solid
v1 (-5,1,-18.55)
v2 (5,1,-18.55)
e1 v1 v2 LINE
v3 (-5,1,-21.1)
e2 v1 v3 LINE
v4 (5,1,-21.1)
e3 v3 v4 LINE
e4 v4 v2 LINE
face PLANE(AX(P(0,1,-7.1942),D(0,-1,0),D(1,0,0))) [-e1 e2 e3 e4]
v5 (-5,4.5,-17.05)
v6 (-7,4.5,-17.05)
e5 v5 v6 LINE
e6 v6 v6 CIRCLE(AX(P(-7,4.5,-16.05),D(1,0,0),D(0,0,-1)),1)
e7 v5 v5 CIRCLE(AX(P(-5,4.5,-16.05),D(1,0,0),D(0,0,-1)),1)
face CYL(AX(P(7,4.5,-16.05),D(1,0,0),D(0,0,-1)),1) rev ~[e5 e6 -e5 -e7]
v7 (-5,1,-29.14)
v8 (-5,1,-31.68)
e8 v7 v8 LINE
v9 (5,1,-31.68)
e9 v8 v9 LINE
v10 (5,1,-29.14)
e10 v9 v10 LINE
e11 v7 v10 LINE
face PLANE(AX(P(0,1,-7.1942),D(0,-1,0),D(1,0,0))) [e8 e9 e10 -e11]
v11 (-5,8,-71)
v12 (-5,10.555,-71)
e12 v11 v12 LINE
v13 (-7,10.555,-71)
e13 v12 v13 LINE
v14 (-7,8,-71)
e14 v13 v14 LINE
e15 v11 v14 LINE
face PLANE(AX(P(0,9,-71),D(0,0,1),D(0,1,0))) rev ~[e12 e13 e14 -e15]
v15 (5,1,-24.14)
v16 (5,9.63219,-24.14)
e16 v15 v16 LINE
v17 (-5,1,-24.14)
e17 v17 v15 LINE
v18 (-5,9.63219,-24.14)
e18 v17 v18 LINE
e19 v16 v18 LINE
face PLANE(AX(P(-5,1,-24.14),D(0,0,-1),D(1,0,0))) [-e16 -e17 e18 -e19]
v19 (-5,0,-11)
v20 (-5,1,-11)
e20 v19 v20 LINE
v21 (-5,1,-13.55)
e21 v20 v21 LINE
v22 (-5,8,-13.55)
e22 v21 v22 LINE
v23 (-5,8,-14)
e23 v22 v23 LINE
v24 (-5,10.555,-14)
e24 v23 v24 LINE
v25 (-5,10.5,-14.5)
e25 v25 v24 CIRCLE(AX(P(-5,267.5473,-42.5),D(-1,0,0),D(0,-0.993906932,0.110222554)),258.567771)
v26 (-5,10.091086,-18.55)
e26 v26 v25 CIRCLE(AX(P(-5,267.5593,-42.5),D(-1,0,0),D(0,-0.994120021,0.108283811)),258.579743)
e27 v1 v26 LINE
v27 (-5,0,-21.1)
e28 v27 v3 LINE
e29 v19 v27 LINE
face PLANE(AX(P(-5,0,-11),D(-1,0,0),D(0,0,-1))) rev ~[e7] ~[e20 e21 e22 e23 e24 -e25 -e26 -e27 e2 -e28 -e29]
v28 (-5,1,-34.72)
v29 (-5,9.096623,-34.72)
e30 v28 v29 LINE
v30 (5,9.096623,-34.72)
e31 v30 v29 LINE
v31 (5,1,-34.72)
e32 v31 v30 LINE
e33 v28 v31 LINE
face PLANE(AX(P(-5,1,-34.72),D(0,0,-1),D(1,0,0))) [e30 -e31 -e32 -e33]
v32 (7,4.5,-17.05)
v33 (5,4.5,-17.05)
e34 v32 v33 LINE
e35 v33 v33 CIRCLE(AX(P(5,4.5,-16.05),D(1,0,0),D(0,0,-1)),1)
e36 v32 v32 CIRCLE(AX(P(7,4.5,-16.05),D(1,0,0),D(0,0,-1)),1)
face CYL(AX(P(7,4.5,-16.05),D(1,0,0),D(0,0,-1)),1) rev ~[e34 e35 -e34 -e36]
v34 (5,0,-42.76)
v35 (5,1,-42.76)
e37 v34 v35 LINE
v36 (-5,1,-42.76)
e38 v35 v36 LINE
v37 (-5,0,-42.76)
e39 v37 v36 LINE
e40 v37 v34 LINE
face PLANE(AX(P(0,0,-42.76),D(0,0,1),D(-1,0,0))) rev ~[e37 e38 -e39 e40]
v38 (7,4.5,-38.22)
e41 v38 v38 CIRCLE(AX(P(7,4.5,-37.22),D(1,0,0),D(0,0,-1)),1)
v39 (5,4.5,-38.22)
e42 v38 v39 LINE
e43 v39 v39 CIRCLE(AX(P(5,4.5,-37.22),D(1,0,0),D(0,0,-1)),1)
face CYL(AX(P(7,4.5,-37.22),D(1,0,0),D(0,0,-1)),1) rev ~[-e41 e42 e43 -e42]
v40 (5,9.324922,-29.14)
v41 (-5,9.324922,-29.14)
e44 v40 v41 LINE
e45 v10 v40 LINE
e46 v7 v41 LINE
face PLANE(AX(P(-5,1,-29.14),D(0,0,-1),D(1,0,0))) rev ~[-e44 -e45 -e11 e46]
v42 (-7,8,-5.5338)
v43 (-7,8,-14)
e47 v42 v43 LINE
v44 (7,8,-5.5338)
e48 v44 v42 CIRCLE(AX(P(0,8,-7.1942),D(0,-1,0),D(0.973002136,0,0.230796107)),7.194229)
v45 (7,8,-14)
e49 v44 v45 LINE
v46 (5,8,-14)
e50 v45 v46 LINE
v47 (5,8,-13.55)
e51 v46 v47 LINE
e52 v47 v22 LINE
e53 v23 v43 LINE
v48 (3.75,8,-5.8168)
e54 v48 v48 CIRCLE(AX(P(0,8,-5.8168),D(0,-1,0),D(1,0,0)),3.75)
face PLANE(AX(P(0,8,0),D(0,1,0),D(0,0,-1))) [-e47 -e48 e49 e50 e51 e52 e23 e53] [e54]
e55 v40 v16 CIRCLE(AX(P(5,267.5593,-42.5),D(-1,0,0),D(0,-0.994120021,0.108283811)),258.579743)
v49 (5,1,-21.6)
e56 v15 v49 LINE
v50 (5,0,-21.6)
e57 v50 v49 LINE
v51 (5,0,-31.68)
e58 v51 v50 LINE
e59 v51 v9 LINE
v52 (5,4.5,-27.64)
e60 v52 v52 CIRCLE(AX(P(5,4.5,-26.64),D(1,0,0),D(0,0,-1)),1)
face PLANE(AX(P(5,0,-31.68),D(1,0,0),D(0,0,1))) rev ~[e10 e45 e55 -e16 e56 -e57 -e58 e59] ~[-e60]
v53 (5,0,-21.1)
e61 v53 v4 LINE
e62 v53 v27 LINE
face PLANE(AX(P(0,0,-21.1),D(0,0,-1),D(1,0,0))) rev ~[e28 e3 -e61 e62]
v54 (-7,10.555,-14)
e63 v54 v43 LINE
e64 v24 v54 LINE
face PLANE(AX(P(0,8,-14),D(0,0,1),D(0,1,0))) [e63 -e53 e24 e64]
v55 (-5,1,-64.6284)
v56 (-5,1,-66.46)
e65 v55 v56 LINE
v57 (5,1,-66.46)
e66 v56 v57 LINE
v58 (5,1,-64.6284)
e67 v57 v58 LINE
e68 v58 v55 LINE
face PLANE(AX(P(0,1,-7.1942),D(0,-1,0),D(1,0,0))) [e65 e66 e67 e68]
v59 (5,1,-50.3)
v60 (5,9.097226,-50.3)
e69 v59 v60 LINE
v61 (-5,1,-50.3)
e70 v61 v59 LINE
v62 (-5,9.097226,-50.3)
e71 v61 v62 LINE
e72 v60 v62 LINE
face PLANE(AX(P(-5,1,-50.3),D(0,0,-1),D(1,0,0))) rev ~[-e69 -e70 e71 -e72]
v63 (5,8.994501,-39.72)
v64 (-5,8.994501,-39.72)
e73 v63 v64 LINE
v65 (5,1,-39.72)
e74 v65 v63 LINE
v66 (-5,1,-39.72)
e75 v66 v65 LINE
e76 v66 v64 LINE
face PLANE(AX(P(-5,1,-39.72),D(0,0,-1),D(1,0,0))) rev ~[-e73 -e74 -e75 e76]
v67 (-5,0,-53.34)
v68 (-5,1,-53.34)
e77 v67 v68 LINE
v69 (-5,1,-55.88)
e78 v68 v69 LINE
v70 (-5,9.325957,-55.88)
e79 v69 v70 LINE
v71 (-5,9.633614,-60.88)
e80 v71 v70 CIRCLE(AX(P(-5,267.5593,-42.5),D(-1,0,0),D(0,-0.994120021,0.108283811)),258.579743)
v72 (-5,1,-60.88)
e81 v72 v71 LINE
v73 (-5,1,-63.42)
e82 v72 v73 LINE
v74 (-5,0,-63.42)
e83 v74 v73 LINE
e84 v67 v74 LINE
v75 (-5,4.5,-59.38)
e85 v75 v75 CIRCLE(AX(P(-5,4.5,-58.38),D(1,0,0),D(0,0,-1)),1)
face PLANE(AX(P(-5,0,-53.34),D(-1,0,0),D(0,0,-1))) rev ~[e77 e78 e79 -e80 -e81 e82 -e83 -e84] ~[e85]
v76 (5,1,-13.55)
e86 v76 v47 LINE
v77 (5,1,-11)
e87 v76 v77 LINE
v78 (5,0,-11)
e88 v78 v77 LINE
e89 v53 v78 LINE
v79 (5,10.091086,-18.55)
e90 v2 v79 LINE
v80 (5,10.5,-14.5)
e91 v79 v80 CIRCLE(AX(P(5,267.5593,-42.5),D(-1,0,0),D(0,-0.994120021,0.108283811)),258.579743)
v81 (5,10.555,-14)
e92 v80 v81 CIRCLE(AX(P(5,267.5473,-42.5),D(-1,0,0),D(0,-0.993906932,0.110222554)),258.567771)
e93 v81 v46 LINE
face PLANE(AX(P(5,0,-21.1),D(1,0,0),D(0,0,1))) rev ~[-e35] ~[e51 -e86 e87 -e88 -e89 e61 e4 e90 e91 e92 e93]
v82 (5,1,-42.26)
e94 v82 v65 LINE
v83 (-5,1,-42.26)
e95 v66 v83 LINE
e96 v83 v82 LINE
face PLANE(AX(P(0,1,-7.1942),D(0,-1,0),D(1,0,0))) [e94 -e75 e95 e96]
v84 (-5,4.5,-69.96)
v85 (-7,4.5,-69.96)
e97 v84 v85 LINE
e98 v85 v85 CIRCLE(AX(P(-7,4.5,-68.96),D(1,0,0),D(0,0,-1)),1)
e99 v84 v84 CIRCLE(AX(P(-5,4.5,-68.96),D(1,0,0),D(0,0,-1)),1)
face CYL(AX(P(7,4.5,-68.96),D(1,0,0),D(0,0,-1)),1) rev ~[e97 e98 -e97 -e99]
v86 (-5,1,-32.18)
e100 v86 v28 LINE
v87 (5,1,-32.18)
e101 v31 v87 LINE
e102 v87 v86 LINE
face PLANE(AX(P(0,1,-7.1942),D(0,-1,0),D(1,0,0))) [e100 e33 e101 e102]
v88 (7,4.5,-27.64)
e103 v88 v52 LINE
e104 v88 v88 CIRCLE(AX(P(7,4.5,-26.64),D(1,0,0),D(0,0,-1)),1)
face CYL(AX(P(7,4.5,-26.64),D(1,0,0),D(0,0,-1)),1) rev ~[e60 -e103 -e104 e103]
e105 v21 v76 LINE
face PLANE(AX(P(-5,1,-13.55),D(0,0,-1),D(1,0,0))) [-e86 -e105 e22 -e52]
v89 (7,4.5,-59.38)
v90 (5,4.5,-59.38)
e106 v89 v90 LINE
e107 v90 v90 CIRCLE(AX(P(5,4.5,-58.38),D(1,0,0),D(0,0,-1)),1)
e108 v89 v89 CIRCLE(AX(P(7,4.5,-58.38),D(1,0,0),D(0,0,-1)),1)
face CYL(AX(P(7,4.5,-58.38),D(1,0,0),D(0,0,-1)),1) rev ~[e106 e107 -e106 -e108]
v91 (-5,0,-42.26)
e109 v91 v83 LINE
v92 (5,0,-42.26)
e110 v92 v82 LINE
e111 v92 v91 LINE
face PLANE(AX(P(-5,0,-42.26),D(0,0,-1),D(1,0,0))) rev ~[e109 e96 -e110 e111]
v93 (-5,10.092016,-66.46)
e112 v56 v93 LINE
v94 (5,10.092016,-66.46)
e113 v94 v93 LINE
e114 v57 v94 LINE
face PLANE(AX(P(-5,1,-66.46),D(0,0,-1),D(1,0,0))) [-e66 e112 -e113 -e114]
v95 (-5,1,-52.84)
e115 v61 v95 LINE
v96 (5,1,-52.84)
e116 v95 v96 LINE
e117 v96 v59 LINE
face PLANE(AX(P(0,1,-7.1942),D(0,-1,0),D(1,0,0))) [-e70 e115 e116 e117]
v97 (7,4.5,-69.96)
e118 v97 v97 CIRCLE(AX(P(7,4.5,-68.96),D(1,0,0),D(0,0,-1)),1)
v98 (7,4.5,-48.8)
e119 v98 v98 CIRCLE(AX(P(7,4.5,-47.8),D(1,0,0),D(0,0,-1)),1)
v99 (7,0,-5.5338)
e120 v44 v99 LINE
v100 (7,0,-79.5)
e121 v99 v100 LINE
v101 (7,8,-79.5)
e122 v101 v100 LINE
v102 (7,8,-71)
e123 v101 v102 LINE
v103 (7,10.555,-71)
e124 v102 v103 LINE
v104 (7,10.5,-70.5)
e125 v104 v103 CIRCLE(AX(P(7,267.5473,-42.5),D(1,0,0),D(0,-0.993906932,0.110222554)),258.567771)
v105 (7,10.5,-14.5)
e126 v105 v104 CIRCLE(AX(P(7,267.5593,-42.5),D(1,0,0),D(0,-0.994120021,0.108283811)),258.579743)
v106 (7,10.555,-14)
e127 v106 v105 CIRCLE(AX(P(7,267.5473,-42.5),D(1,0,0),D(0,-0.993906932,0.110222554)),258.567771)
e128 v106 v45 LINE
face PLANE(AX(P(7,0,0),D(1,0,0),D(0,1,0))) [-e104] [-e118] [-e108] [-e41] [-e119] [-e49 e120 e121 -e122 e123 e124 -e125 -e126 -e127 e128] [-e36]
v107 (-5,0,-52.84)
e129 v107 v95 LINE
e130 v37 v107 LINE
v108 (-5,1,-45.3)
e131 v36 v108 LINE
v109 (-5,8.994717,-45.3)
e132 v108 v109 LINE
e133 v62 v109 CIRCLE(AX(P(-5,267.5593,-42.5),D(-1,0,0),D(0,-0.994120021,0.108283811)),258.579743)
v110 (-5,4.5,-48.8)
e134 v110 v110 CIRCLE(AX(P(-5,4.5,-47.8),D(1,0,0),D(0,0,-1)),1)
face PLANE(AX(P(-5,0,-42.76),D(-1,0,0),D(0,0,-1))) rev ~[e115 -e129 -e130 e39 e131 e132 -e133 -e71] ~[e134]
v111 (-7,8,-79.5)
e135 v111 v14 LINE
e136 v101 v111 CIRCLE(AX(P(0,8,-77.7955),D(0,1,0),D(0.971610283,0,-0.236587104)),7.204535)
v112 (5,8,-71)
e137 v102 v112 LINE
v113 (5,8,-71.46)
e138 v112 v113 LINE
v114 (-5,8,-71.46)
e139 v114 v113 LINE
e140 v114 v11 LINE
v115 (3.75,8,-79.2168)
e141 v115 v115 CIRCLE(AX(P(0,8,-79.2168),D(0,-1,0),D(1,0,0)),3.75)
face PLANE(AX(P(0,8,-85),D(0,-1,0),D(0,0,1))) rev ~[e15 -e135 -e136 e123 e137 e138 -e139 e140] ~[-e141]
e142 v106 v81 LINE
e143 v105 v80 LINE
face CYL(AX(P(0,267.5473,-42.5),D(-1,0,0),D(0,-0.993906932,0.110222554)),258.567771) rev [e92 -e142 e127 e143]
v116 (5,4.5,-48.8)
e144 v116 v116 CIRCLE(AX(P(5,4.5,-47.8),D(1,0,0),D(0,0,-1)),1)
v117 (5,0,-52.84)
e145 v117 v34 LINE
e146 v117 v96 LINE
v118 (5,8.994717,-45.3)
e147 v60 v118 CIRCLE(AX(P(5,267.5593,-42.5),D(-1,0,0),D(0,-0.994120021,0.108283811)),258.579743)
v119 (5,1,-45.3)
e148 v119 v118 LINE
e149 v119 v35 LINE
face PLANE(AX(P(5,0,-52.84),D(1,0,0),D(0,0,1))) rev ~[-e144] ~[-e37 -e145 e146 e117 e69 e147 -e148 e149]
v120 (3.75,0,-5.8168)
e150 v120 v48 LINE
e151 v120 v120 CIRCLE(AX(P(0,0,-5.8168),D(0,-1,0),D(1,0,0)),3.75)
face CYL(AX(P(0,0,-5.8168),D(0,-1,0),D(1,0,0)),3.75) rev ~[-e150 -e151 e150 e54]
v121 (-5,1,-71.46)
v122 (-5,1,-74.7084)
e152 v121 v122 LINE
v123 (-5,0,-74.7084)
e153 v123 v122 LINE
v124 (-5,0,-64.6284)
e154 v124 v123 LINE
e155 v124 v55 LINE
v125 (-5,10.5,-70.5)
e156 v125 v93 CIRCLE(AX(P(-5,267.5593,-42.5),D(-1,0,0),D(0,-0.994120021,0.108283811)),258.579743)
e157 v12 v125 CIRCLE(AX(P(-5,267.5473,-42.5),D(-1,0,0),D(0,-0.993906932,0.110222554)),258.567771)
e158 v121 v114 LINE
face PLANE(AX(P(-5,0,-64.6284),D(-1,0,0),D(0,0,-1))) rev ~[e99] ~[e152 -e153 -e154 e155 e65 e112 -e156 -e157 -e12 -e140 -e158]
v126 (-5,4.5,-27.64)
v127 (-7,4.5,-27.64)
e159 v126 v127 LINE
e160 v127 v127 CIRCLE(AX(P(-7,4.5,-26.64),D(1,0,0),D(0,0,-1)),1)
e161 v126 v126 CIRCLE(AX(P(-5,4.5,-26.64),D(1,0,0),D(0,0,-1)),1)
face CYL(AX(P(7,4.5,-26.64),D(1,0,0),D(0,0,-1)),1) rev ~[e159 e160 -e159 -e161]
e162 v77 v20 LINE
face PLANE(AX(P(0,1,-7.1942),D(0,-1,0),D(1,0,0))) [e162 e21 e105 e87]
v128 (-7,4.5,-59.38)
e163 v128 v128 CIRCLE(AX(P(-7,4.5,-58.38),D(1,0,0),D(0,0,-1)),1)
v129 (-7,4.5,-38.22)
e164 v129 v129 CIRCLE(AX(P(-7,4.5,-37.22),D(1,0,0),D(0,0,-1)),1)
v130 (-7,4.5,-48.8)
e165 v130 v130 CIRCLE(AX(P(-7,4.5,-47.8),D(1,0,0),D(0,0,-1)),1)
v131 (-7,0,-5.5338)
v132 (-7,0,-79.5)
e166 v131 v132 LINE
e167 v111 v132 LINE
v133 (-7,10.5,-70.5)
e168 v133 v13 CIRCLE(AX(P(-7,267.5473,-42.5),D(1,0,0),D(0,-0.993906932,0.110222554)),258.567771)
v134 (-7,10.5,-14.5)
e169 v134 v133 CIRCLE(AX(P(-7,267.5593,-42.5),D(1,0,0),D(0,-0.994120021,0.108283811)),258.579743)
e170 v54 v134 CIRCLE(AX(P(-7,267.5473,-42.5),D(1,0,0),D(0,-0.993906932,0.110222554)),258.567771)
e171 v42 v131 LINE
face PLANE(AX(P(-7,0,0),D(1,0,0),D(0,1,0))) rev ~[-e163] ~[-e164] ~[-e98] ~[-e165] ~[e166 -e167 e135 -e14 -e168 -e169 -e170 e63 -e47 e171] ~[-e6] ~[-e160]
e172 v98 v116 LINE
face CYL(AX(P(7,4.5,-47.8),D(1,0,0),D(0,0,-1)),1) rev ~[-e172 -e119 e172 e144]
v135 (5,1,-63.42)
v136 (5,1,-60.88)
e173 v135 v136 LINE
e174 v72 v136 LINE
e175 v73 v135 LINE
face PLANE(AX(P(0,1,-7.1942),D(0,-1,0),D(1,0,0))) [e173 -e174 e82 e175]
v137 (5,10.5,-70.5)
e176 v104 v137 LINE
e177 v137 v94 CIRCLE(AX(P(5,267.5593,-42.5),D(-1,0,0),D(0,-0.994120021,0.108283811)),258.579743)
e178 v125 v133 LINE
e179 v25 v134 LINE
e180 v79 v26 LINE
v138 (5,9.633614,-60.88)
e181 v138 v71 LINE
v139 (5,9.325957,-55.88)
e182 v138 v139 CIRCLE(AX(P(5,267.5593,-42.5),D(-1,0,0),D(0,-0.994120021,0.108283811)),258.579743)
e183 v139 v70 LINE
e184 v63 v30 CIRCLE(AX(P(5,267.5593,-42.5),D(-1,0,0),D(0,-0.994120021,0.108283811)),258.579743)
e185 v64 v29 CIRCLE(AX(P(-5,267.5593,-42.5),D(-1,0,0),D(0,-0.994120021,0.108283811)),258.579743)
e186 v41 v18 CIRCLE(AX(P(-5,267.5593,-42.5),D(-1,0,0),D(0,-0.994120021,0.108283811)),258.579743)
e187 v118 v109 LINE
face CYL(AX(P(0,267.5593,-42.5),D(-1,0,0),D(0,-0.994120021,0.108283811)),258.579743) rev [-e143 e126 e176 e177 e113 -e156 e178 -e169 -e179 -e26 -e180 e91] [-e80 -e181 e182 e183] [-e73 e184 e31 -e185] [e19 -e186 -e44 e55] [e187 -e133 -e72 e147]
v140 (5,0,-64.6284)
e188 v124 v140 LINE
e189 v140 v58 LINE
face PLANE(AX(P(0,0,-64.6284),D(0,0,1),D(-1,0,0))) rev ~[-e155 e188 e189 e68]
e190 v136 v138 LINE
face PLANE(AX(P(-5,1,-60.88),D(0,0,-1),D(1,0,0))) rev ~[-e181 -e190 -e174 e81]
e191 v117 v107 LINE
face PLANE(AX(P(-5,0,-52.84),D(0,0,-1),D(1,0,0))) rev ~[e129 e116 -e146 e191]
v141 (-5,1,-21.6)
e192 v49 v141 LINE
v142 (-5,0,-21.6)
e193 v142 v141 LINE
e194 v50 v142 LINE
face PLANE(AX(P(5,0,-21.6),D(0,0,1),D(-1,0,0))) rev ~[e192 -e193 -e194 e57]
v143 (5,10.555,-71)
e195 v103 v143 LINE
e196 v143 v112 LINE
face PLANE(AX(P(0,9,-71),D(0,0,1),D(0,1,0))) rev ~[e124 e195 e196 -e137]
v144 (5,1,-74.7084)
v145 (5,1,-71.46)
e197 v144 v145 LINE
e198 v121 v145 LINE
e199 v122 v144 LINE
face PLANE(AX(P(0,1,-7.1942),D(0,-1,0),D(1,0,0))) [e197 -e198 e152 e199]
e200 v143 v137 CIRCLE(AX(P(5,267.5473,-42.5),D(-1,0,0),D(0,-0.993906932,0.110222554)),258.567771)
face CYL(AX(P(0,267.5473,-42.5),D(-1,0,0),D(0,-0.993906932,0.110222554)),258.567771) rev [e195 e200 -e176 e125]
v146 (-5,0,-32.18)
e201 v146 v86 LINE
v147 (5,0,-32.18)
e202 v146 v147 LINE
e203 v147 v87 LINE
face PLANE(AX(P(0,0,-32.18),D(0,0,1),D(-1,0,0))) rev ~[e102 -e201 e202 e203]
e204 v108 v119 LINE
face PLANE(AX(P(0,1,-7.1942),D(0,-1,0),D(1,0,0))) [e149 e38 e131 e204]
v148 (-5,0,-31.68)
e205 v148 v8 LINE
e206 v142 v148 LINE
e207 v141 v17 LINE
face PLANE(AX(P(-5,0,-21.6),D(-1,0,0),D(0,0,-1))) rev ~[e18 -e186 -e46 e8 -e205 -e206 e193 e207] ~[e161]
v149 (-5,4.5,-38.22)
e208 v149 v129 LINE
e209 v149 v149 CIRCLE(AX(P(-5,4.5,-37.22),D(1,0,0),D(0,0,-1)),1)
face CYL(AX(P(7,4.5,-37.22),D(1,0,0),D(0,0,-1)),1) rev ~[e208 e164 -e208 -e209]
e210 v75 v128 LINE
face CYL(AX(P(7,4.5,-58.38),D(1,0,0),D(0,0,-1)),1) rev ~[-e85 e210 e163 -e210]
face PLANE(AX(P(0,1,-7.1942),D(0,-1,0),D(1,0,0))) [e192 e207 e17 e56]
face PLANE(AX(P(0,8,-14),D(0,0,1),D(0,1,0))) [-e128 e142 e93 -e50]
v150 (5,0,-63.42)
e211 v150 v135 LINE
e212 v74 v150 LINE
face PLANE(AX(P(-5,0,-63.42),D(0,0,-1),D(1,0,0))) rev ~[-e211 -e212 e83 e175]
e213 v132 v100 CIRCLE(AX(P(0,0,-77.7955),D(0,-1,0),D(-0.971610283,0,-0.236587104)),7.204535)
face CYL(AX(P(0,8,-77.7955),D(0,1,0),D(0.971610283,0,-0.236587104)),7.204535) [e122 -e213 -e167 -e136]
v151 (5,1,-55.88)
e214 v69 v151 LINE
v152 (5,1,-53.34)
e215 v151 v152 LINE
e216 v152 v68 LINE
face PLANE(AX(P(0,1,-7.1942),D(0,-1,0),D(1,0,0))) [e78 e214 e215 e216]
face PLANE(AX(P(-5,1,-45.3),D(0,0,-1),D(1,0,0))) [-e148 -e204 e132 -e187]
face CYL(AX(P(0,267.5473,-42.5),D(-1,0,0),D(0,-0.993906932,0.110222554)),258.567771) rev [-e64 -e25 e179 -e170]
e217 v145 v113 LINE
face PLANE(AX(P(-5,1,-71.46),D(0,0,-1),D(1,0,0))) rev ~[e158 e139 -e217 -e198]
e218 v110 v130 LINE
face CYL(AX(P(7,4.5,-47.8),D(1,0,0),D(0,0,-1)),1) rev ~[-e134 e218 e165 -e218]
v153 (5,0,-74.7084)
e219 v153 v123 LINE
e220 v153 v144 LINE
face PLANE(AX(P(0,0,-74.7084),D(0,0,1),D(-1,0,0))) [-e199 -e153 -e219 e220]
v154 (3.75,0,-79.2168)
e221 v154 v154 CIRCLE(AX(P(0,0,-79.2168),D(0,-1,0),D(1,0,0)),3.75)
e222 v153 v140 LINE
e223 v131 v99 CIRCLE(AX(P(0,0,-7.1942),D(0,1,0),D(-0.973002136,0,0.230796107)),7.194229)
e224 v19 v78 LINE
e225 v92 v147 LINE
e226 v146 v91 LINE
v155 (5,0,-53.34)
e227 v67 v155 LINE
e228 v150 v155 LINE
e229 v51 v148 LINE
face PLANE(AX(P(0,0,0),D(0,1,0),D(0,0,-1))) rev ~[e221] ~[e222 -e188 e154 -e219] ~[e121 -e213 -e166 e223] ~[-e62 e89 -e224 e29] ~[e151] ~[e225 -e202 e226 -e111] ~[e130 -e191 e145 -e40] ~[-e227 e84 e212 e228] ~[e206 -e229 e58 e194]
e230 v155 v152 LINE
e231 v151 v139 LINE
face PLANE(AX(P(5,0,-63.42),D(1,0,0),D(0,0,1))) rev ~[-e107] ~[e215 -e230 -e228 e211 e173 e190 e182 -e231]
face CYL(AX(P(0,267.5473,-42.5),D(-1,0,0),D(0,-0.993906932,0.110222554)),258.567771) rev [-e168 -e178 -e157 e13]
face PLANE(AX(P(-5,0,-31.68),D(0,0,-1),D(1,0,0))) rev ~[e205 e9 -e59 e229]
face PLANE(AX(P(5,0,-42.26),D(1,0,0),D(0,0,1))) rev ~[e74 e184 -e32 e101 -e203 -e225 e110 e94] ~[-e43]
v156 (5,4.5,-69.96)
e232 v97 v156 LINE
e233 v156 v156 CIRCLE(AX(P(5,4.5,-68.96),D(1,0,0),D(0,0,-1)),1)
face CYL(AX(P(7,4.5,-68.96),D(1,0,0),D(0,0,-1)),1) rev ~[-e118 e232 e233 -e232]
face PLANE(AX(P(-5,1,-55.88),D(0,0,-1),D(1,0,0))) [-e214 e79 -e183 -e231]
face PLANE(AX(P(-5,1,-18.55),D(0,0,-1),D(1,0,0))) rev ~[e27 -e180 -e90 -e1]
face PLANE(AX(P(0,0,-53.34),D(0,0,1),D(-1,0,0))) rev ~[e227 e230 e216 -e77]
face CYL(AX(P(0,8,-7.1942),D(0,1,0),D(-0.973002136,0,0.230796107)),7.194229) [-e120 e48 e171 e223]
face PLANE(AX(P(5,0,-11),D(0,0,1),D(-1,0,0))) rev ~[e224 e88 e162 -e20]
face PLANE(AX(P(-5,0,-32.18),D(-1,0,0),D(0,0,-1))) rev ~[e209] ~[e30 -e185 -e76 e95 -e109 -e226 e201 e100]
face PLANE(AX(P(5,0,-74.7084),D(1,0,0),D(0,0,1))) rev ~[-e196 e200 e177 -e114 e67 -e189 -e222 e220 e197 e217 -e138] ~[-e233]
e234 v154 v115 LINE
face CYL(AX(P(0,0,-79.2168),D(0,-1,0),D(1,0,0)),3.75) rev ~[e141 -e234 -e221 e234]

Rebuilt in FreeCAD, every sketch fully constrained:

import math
import FreeCAD as App
import Part
import Sketcher

V = App.Vector

doc = App.newDocument("Part")
body = doc.addObject("PartDesign::Body", "Body")

# Sketch on YZ plane
sketch1 = body.newObject("Sketcher::SketchObject", "Sketch")
sketch1.AttachmentSupport = (doc.getObject("YZ_Plane"), [""])
sketch1.MapMode = "FlatFace"
sketch1.addGeometry([
    Part.LineSegment(V(8, 0, 0), V(0, 0, 0)),  # 0
    Part.LineSegment(V(0, 0, 0), V(0, -85, 0)),  # 1
    Part.LineSegment(V(0, -85, 0), V(8, -85, 0)),  # 2
    Part.LineSegment(V(8, -85, 0), V(8, -71, 0)),  # 3
    Part.LineSegment(V(8, -71, 0), V(10.555, -71, 0)),  # 4
    Part.ArcOfCircle(Part.Circle(V(267.5473, -42.5, 0), V(0, 0, 1), 258.567771), math.radians(-173.783318), math.radians(-173.671855)),  # 5
    Part.ArcOfCircle(Part.Circle(V(267.5593, -42.5, 0), V(0, 0, 1), 258.579743), math.radians(173.783606), math.radians(186.216394)),  # 6
    Part.ArcOfCircle(Part.Circle(V(267.5473, -42.5, 0), V(0, 0, 1), 258.567771), math.radians(173.671855), math.radians(173.783318)),  # 7
    Part.LineSegment(V(10.555, -14, 0), V(8, -14, 0)),  # 8
    Part.LineSegment(V(8, -14, 0), V(8, 0, 0)),  # 9
], False)
sketch1.addConstraint([
    Sketcher.Constraint("Coincident", 0, 2, 1, 1),
    Sketcher.Constraint("Coincident", 1, 2, 2, 1),
    Sketcher.Constraint("Coincident", 2, 2, 3, 1),
    Sketcher.Constraint("Coincident", 3, 2, 4, 1),
    Sketcher.Constraint("Coincident", 4, 2, 5, 2),
    Sketcher.Constraint("Coincident", 5, 1, 6, 2),
    Sketcher.Constraint("Coincident", 6, 1, 7, 2),
    Sketcher.Constraint("Coincident", 7, 1, 8, 1),
    Sketcher.Constraint("Coincident", 8, 2, 9, 1),
    Sketcher.Constraint("Coincident", 9, 2, 0, 1),
    Sketcher.Constraint("Horizontal", 0),
    Sketcher.Constraint("Vertical", 1),
    Sketcher.Constraint("Horizontal", 2),
    Sketcher.Constraint("Vertical", 3),
    Sketcher.Constraint("Horizontal", 4),
    Sketcher.Constraint("Horizontal", 8),
    Sketcher.Constraint("Vertical", 9),
    Sketcher.Constraint("Coincident", 0, 2, -1, 1),
    Sketcher.Constraint("Coincident", 7, 3, 5, 3),
    Sketcher.Constraint("DistanceX", 0, 2, 0, 1, 8.0),
    Sketcher.Constraint("DistanceX", 2, 1, 2, 2, 8.0),
    Sketcher.Constraint("DistanceY", 1, 2, 1, 1, 85.0),
    Sketcher.Constraint("DistanceY", 3, 1, 3, 2, 14.0),
    Sketcher.Constraint("DistanceY", 9, 1, 9, 2, 14.0),
    Sketcher.Constraint("DistanceY", 5, 1, 6, 1, 56.0),
    Sketcher.Constraint("DistanceY", 5, 3, -1, 1, 42.5),
    Sketcher.Constraint("DistanceY", 6, 3, -1, 1, 42.5),
    Sketcher.Constraint("DistanceX", -1, 1, 5, 1, 10.5),
    Sketcher.Constraint("DistanceY", 5, 1, -1, 1, 70.5),
    Sketcher.Constraint("Radius", 5, 258.5678),
    Sketcher.Constraint("Radius", 6, 258.5797),
])
pad1 = body.newObject("PartDesign::Pad", "Pad")
pad1.Profile = sketch1
pad1.Length = 14
pad1.Midplane = True

# Sketch on XZ plane
sketch2 = body.newObject("Sketcher::SketchObject", "Sketch001")
sketch2.AttachmentSupport = (doc.getObject("XZ_Plane"), [""])
sketch2.MapMode = "FlatFace"
sketch2.AttachmentOffset = App.Placement(V(0, 0, -8), App.Rotation())
sketch2.addGeometry([
    Part.ArcOfCircle(Part.Circle(V(0, -7.1942, 0), V(0, 0, 1), 7.194229), math.radians(90), math.radians(166.656054)),  # 0
    Part.LineSegment(V(-7, -5.5338, 0), V(-7, 0, 0)),  # 1
    Part.LineSegment(V(-7, 0, 0), V(0, 0, 0)),  # 2
    Part.ArcOfCircle(Part.Circle(V(0, -7.1942, 0), V(0, 0, 1), 7.194229), math.radians(13.343946), math.radians(90)),  # 3
    Part.LineSegment(V(0, 0, 0), V(7, 0, 0)),  # 4
    Part.LineSegment(V(7, 0, 0), V(7, -5.5338, 0)),  # 5
], False)
sketch2.addConstraint([
    Sketcher.Constraint("Coincident", 0, 2, 1, 1),
    Sketcher.Constraint("Coincident", 1, 2, 2, 1),
    Sketcher.Constraint("Tangent", 2, 2, 0, 1),
    Sketcher.Constraint("Tangent", 3, 2, 4, 1),
    Sketcher.Constraint("Coincident", 4, 2, 5, 1),
    Sketcher.Constraint("Coincident", 5, 2, 3, 1),
    Sketcher.Constraint("Vertical", 1),
    Sketcher.Constraint("Horizontal", 2),
    Sketcher.Constraint("Horizontal", 4),
    Sketcher.Constraint("Vertical", 5),
    Sketcher.Constraint("Coincident", 2, 2, -1, 1),
    Sketcher.Constraint("Coincident", 3, 2, -1, 1),
    Sketcher.Constraint("Equal", 0, 3),
    Sketcher.Constraint("Horizontal", 0, 2, 5, 2),
    Sketcher.Constraint("DistanceX", 2, 1, 2, 2, 7.0),
    Sketcher.Constraint("Radius", 0, 7.1942),
])
pocket1 = body.newObject("PartDesign::Pocket", "Pocket")
pocket1.Profile = sketch2
pocket1.Length = 14
pocket1.Reversed = True

# Sketch on XZ plane
sketch3 = body.newObject("Sketcher::SketchObject", "Sketch002")
sketch3.AttachmentSupport = (doc.getObject("XZ_Plane"), [""])
sketch3.MapMode = "FlatFace"
sketch3.AttachmentOffset = App.Placement(V(0, 0, -8), App.Rotation())
sketch3.addGeometry([
    Part.LineSegment(V(-7, -85, 0), V(-7, -79.5, 0)),  # 0
    Part.ArcOfCircle(Part.Circle(V(0, -77.7955, 0), V(0, 0, 1), 7.204535), math.radians(-166.314804), math.radians(-90)),  # 1
    Part.LineSegment(V(0, -85, 0), V(-7, -85, 0)),  # 2
    Part.ArcOfCircle(Part.Circle(V(0, -77.7955, 0), V(0, 0, 1), 7.204535), math.radians(-90), math.radians(-13.685196)),  # 3
    Part.LineSegment(V(7, -79.5, 0), V(7, -85, 0)),  # 4
    Part.LineSegment(V(7, -85, 0), V(0, -85, 0)),  # 5
], False)
sketch3.addConstraint([
    Sketcher.Constraint("Coincident", 0, 2, 1, 1),
    Sketcher.Constraint("Tangent", 1, 2, 2, 1),
    Sketcher.Constraint("Coincident", 2, 2, 0, 1),
    Sketcher.Constraint("Coincident", 3, 2, 4, 1),
    Sketcher.Constraint("Coincident", 4, 2, 5, 1),
    Sketcher.Constraint("Tangent", 5, 2, 3, 1),
    Sketcher.Constraint("Vertical", 0),
    Sketcher.Constraint("Horizontal", 2),
    Sketcher.Constraint("Vertical", 4),
    Sketcher.Constraint("Horizontal", 5),
    Sketcher.Constraint("Coincident", 3, 3, 1, 3),
    Sketcher.Constraint("Equal", 1, 3),
    Sketcher.Constraint("Symmetric", 0, 2, 3, 2, -2),
    Sketcher.Constraint("DistanceX", 2, 2, 2, 1, 7.0),
    Sketcher.Constraint("DistanceY", 0, 1, 0, 2, 5.5),
    Sketcher.Constraint("DistanceY", 1, 2, -1, 1, 85.0),
])
pocket2 = body.newObject("PartDesign::Pocket", "Pocket001")
pocket2.Profile = sketch3
pocket2.Length = 14
pocket2.Reversed = True

# Sketch on XZ plane
sketch4 = body.newObject("Sketcher::SketchObject", "Sketch003")
sketch4.AttachmentSupport = (doc.getObject("XZ_Plane"), [""])
sketch4.MapMode = "FlatFace"
sketch4.addGeometry([
    Part.LineSegment(V(5, -11, 0), V(-5, -11, 0)),  # 0
    Part.LineSegment(V(-5, -11, 0), V(-5, -21.1, 0)),  # 1
    Part.LineSegment(V(-5, -21.1, 0), V(5, -21.1, 0)),  # 2
    Part.LineSegment(V(5, -21.1, 0), V(5, -11, 0)),  # 3
    Part.LineSegment(V(-5, -74.7084, 0), V(5, -74.7084, 0)),  # 4
    Part.LineSegment(V(5, -74.7084, 0), V(5, -64.6284, 0)),  # 5
    Part.LineSegment(V(5, -64.6284, 0), V(-5, -64.6284, 0)),  # 6
    Part.LineSegment(V(-5, -64.6284, 0), V(-5, -74.7084, 0)),  # 7
], False)
sketch4.addConstraint([
    Sketcher.Constraint("Coincident", 0, 2, 1, 1),
    Sketcher.Constraint("Coincident", 1, 2, 2, 1),
    Sketcher.Constraint("Coincident", 2, 2, 3, 1),
    Sketcher.Constraint("Coincident", 3, 2, 0, 1),
    Sketcher.Constraint("Coincident", 4, 2, 5, 1),
    Sketcher.Constraint("Coincident", 5, 2, 6, 1),
    Sketcher.Constraint("Coincident", 6, 2, 7, 1),
    Sketcher.Constraint("Coincident", 7, 2, 4, 1),
    Sketcher.Constraint("Horizontal", 0),
    Sketcher.Constraint("Vertical", 1),
    Sketcher.Constraint("Horizontal", 2),
    Sketcher.Constraint("Vertical", 3),
    Sketcher.Constraint("Horizontal", 4),
    Sketcher.Constraint("Vertical", 5),
    Sketcher.Constraint("Horizontal", 6),
    Sketcher.Constraint("Vertical", 7),
    Sketcher.Constraint("Vertical", 3, 2, 4, 2),
    Sketcher.Constraint("Vertical", 1, 2, 6, 2),
    Sketcher.Constraint("DistanceX", 0, 2, 0, 1, 10.0),
    Sketcher.Constraint("DistanceY", 1, 2, 1, 1, 10.1),
    Sketcher.Constraint("DistanceX", 0, 2, -1, 1, 5.0),
    Sketcher.Constraint("DistanceY", 0, 2, -1, 1, 11.0),
    Sketcher.Constraint("DistanceY", 5, 1, 5, 2, 10.08),
    Sketcher.Constraint("DistanceY", 4, 2, -1, 1, 74.7084),
])
pocket3 = body.newObject("PartDesign::Pocket", "Pocket002")
pocket3.Profile = sketch4
pocket3.Length = 1

# Sketch on XZ plane
sketch5 = body.newObject("Sketcher::SketchObject", "Sketch004")
sketch5.AttachmentSupport = (doc.getObject("XZ_Plane"), [""])
sketch5.MapMode = "FlatFace"
sketch5.addGeometry([
    Part.LineSegment(V(-5, -53.34, 0), V(-5, -63.42, 0)),  # 0
    Part.LineSegment(V(-5, -63.42, 0), V(5, -63.42, 0)),  # 1
    Part.LineSegment(V(5, -63.42, 0), V(5, -53.34, 0)),  # 2
    Part.LineSegment(V(5, -53.34, 0), V(-5, -53.34, 0)),  # 3
    Part.LineSegment(V(-5, -31.68, 0), V(5, -31.68, 0)),  # 4
    Part.LineSegment(V(5, -31.68, 0), V(5, -21.6, 0)),  # 5
    Part.LineSegment(V(5, -21.6, 0), V(-5, -21.6, 0)),  # 6
    Part.LineSegment(V(-5, -21.6, 0), V(-5, -31.68, 0)),  # 7
    Part.LineSegment(V(-5, -42.26, 0), V(5, -42.26, 0)),  # 8
    Part.LineSegment(V(5, -42.26, 0), V(5, -32.18, 0)),  # 9
    Part.LineSegment(V(5, -32.18, 0), V(-5, -32.18, 0)),  # 10
    Part.LineSegment(V(-5, -32.18, 0), V(-5, -42.26, 0)),  # 11
    Part.LineSegment(V(-5, -52.84, 0), V(5, -52.84, 0)),  # 12
    Part.LineSegment(V(5, -52.84, 0), V(5, -42.76, 0)),  # 13
    Part.LineSegment(V(5, -42.76, 0), V(-5, -42.76, 0)),  # 14
    Part.LineSegment(V(-5, -42.76, 0), V(-5, -52.84, 0)),  # 15
], False)
sketch5.addConstraint([
    Sketcher.Constraint("Coincident", 0, 2, 1, 1),
    Sketcher.Constraint("Coincident", 1, 2, 2, 1),
    Sketcher.Constraint("Coincident", 2, 2, 3, 1),
    Sketcher.Constraint("Coincident", 3, 2, 0, 1),
    Sketcher.Constraint("Coincident", 4, 2, 5, 1),
    Sketcher.Constraint("Coincident", 5, 2, 6, 1),
    Sketcher.Constraint("Coincident", 6, 2, 7, 1),
    Sketcher.Constraint("Coincident", 7, 2, 4, 1),
    Sketcher.Constraint("Coincident", 8, 2, 9, 1),
    Sketcher.Constraint("Coincident", 9, 2, 10, 1),
    Sketcher.Constraint("Coincident", 10, 2, 11, 1),
    Sketcher.Constraint("Coincident", 11, 2, 8, 1),
    Sketcher.Constraint("Coincident", 12, 2, 13, 1),
    Sketcher.Constraint("Coincident", 13, 2, 14, 1),
    Sketcher.Constraint("Coincident", 14, 2, 15, 1),
    Sketcher.Constraint("Coincident", 15, 2, 12, 1),
    Sketcher.Constraint("Vertical", 0),
    Sketcher.Constraint("Horizontal", 1),
    Sketcher.Constraint("Vertical", 2),
    Sketcher.Constraint("Horizontal", 3),
    Sketcher.Constraint("Horizontal", 4),
    Sketcher.Constraint("Vertical", 5),
    Sketcher.Constraint("Horizontal", 6),
    Sketcher.Constraint("Vertical", 7),
    Sketcher.Constraint("Horizontal", 8),
    Sketcher.Constraint("Vertical", 9),
    Sketcher.Constraint("Horizontal", 10),
    Sketcher.Constraint("Vertical", 11),
    Sketcher.Constraint("Horizontal", 12),
    Sketcher.Constraint("Vertical", 13),
    Sketcher.Constraint("Horizontal", 14),
    Sketcher.Constraint("Vertical", 15),
    Sketcher.Constraint("Vertical", 2, 2, 4, 2),
    Sketcher.Constraint("Vertical", 3, 2, 6, 2),
    Sketcher.Constraint("Vertical", 5, 2, 8, 2),
    Sketcher.Constraint("Vertical", 7, 2, 10, 2),
    Sketcher.Constraint("Vertical", 9, 2, 12, 2),
    Sketcher.Constraint("Vertical", 11, 2, 14, 2),
    Sketcher.Constraint("Equal", 2, 5),
    Sketcher.Constraint("Equal", 7, 9),
    Sketcher.Constraint("Equal", 11, 13),
    Sketcher.Constraint("DistanceY", 0, 2, 0, 1, 10.08),
    Sketcher.Constraint("DistanceY", 9, 2, 4, 2, 0.5),
    Sketcher.Constraint("DistanceY", 2, 2, 12, 2, 0.5),
    Sketcher.Constraint("DistanceY", 13, 2, 8, 2, 0.5),
    Sketcher.Constraint("DistanceX", 1, 1, 1, 2, 10.0),
    Sketcher.Constraint("DistanceX", 0, 2, -1, 1, 5.0),
    Sketcher.Constraint("DistanceY", 5, 2, -1, 1, 21.6),
])
pocket4 = body.newObject("PartDesign::Pocket", "Pocket003")
pocket4.Profile = sketch5
pocket4.Length = 1

# Sketch on XZ plane
sketch6 = body.newObject("Sketcher::SketchObject", "Sketch005")
sketch6.AttachmentSupport = (doc.getObject("XZ_Plane"), [""])
sketch6.MapMode = "FlatFace"
sketch6.AttachmentOffset = App.Placement(V(0, 0, -1), App.Rotation())
sketch6.addGeometry([
    Part.LineSegment(V(-5, -66.46, 0), V(-5, -71.46, 0)),
    Part.LineSegment(V(-5, -71.46, 0), V(5, -71.46, 0)),
    Part.LineSegment(V(5, -71.46, 0), V(5, -66.46, 0)),
    Part.LineSegment(V(5, -66.46, 0), V(-5, -66.46, 0)),
], False)
sketch6.addConstraint([
    Sketcher.Constraint("Coincident", 0, 2, 1, 1),
    Sketcher.Constraint("Coincident", 1, 2, 2, 1),
    Sketcher.Constraint("Coincident", 2, 2, 3, 1),
    Sketcher.Constraint("Coincident", 3, 2, 0, 1),
    Sketcher.Constraint("Vertical", 0),
    Sketcher.Constraint("Horizontal", 1),
    Sketcher.Constraint("Vertical", 2),
    Sketcher.Constraint("Horizontal", 3),
    Sketcher.Constraint("DistanceX", 1, 1, 1, 2, 10.0),
    Sketcher.Constraint("DistanceY", 0, 2, 0, 1, 5.0),
    Sketcher.Constraint("DistanceX", 0, 2, -1, 1, 5.0),
    Sketcher.Constraint("DistanceY", 0, 2, -1, 1, 71.46),
])
pocket5 = body.newObject("PartDesign::Pocket", "Pocket004")
pocket5.Profile = sketch6
pocket5.Length = 20

# Sketch on XZ plane
sketch7 = body.newObject("Sketcher::SketchObject", "Sketch006")
sketch7.AttachmentSupport = (doc.getObject("XZ_Plane"), [""])
sketch7.MapMode = "FlatFace"
sketch7.AttachmentOffset = App.Placement(V(0, 0, -1), App.Rotation())
sketch7.addGeometry([
    Part.LineSegment(V(-5, -55.88, 0), V(-5, -60.88, 0)),
    Part.LineSegment(V(-5, -60.88, 0), V(5, -60.88, 0)),
    Part.LineSegment(V(5, -60.88, 0), V(5, -55.88, 0)),
    Part.LineSegment(V(5, -55.88, 0), V(-5, -55.88, 0)),
], False)
sketch7.addConstraint([
    Sketcher.Constraint("Coincident", 0, 2, 1, 1),
    Sketcher.Constraint("Coincident", 1, 2, 2, 1),
    Sketcher.Constraint("Coincident", 2, 2, 3, 1),
    Sketcher.Constraint("Coincident", 3, 2, 0, 1),
    Sketcher.Constraint("Vertical", 0),
    Sketcher.Constraint("Horizontal", 1),
    Sketcher.Constraint("Vertical", 2),
    Sketcher.Constraint("Horizontal", 3),
    Sketcher.Constraint("DistanceY", 0, 2, 0, 1, 5.0),
    Sketcher.Constraint("DistanceX", 0, 2, -1, 1, 5.0),
    Sketcher.Constraint("DistanceX", -1, 1, 1, 2, 5.0),
    Sketcher.Constraint("DistanceY", 0, 2, -1, 1, 60.88),
])
pocket6 = body.newObject("PartDesign::Pocket", "Pocket005")
pocket6.Profile = sketch7
pocket6.Length = 20

# Sketch on XZ plane
sketch8 = body.newObject("Sketcher::SketchObject", "Sketch007")
sketch8.AttachmentSupport = (doc.getObject("XZ_Plane"), [""])
sketch8.MapMode = "FlatFace"
sketch8.AttachmentOffset = App.Placement(V(0, 0, -1), App.Rotation())
sketch8.addGeometry([
    Part.LineSegment(V(-5, -45.3, 0), V(-5, -50.3, 0)),
    Part.LineSegment(V(-5, -50.3, 0), V(5, -50.3, 0)),
    Part.LineSegment(V(5, -50.3, 0), V(5, -45.3, 0)),
    Part.LineSegment(V(5, -45.3, 0), V(-5, -45.3, 0)),
], False)
sketch8.addConstraint([
    Sketcher.Constraint("Coincident", 0, 2, 1, 1),
    Sketcher.Constraint("Coincident", 1, 2, 2, 1),
    Sketcher.Constraint("Coincident", 2, 2, 3, 1),
    Sketcher.Constraint("Coincident", 3, 2, 0, 1),
    Sketcher.Constraint("Vertical", 0),
    Sketcher.Constraint("Horizontal", 1),
    Sketcher.Constraint("Vertical", 2),
    Sketcher.Constraint("Horizontal", 3),
    Sketcher.Constraint("DistanceX", 1, 1, 1, 2, 10.0),
    Sketcher.Constraint("DistanceY", 0, 2, 0, 1, 5.0),
    Sketcher.Constraint("DistanceX", 0, 2, -1, 1, 5.0),
    Sketcher.Constraint("DistanceY", 0, 2, -1, 1, 50.3),
])
pocket7 = body.newObject("PartDesign::Pocket", "Pocket006")
pocket7.Profile = sketch8
pocket7.Length = 20

# Sketch on XZ plane
sketch9 = body.newObject("Sketcher::SketchObject", "Sketch008")
sketch9.AttachmentSupport = (doc.getObject("XZ_Plane"), [""])
sketch9.MapMode = "FlatFace"
sketch9.AttachmentOffset = App.Placement(V(0, 0, -1), App.Rotation())
sketch9.addGeometry([
    Part.LineSegment(V(-5, -34.72, 0), V(-5, -39.72, 0)),
    Part.LineSegment(V(-5, -39.72, 0), V(5, -39.72, 0)),
    Part.LineSegment(V(5, -39.72, 0), V(5, -34.72, 0)),
    Part.LineSegment(V(5, -34.72, 0), V(-5, -34.72, 0)),
], False)
sketch9.addConstraint([
    Sketcher.Constraint("Coincident", 0, 2, 1, 1),
    Sketcher.Constraint("Coincident", 1, 2, 2, 1),
    Sketcher.Constraint("Coincident", 2, 2, 3, 1),
    Sketcher.Constraint("Coincident", 3, 2, 0, 1),
    Sketcher.Constraint("Vertical", 0),
    Sketcher.Constraint("Horizontal", 1),
    Sketcher.Constraint("Vertical", 2),
    Sketcher.Constraint("Horizontal", 3),
    Sketcher.Constraint("DistanceX", 1, 1, 1, 2, 10.0),
    Sketcher.Constraint("DistanceY", 0, 2, 0, 1, 5.0),
    Sketcher.Constraint("DistanceX", 0, 2, -1, 1, 5.0),
    Sketcher.Constraint("DistanceY", 0, 2, -1, 1, 39.72),
])
pocket8 = body.newObject("PartDesign::Pocket", "Pocket007")
pocket8.Profile = sketch9
pocket8.Length = 20

# Sketch on XZ plane
sketch10 = body.newObject("Sketcher::SketchObject", "Sketch009")
sketch10.AttachmentSupport = (doc.getObject("XZ_Plane"), [""])
sketch10.MapMode = "FlatFace"
sketch10.AttachmentOffset = App.Placement(V(0, 0, -1), App.Rotation())
sketch10.addGeometry([
    Part.LineSegment(V(-5, -24.14, 0), V(-5, -29.14, 0)),
    Part.LineSegment(V(-5, -29.14, 0), V(5, -29.14, 0)),
    Part.LineSegment(V(5, -29.14, 0), V(5, -24.14, 0)),
    Part.LineSegment(V(5, -24.14, 0), V(-5, -24.14, 0)),
], False)
sketch10.addConstraint([
    Sketcher.Constraint("Coincident", 0, 2, 1, 1),
    Sketcher.Constraint("Coincident", 1, 2, 2, 1),
    Sketcher.Constraint("Coincident", 2, 2, 3, 1),
    Sketcher.Constraint("Coincident", 3, 2, 0, 1),
    Sketcher.Constraint("Vertical", 0),
    Sketcher.Constraint("Horizontal", 1),
    Sketcher.Constraint("Vertical", 2),
    Sketcher.Constraint("Horizontal", 3),
    Sketcher.Constraint("DistanceX", 1, 1, 1, 2, 10.0),
    Sketcher.Constraint("DistanceY", 0, 2, 0, 1, 5.0),
    Sketcher.Constraint("DistanceX", 0, 2, -1, 1, 5.0),
    Sketcher.Constraint("DistanceY", 0, 2, -1, 1, 29.14),
])
pocket9 = body.newObject("PartDesign::Pocket", "Pocket008")
pocket9.Profile = sketch10
pocket9.Length = 20

# Sketch on XZ plane
sketch11 = body.newObject("Sketcher::SketchObject", "Sketch010")
sketch11.AttachmentSupport = (doc.getObject("XZ_Plane"), [""])
sketch11.MapMode = "FlatFace"
sketch11.AttachmentOffset = App.Placement(V(0, 0, -1), App.Rotation())
sketch11.addGeometry([
    Part.LineSegment(V(-5, -13.55, 0), V(-5, -18.55, 0)),
    Part.LineSegment(V(-5, -18.55, 0), V(5, -18.55, 0)),
    Part.LineSegment(V(5, -18.55, 0), V(5, -13.55, 0)),
    Part.LineSegment(V(5, -13.55, 0), V(-5, -13.55, 0)),
], False)
sketch11.addConstraint([
    Sketcher.Constraint("Coincident", 0, 2, 1, 1),
    Sketcher.Constraint("Coincident", 1, 2, 2, 1),
    Sketcher.Constraint("Coincident", 2, 2, 3, 1),
    Sketcher.Constraint("Coincident", 3, 2, 0, 1),
    Sketcher.Constraint("Vertical", 0),
    Sketcher.Constraint("Horizontal", 1),
    Sketcher.Constraint("Vertical", 2),
    Sketcher.Constraint("Horizontal", 3),
    Sketcher.Constraint("DistanceX", 1, 1, 1, 2, 10.0),
    Sketcher.Constraint("DistanceY", 0, 2, 0, 1, 5.0),
    Sketcher.Constraint("DistanceX", 0, 2, -1, 1, 5.0),
    Sketcher.Constraint("DistanceY", 0, 2, -1, 1, 18.55),
])
pocket10 = body.newObject("PartDesign::Pocket", "Pocket009")
pocket10.Profile = sketch11
pocket10.Length = 20

# Sketch on XZ plane
sketch12 = body.newObject("Sketcher::SketchObject", "Sketch011")
sketch12.AttachmentSupport = (doc.getObject("XZ_Plane"), [""])
sketch12.MapMode = "FlatFace"
sketch12.addGeometry([
    Part.Circle(V(0, -5.8168, 0), V(0, 0, 1), 3.75),
    Part.Circle(V(0, -79.2168, 0), V(0, 0, 1), 3.75),
], False)
sketch12.addConstraint([
    Sketcher.Constraint("Equal", 0, 1),
    Sketcher.Constraint("PointOnObject", 0, 3, -2),
    Sketcher.Constraint("PointOnObject", 1, 3, -2),
    Sketcher.Constraint("Diameter", 0, 7.5),
    Sketcher.Constraint("DistanceY", 1, 3, 0, 3, 73.4),
    Sketcher.Constraint("DistanceY", 0, 3, -1, 1, 5.8168),
])
pocket11 = body.newObject("PartDesign::Pocket", "Pocket010")
pocket11.Profile = sketch12
pocket11.Type = "ThroughAll"

# Sketch on YZ plane
sketch13 = body.newObject("Sketcher::SketchObject", "Sketch012")
sketch13.AttachmentSupport = (doc.getObject("YZ_Plane"), [""])
sketch13.MapMode = "FlatFace"
sketch13.AttachmentOffset = App.Placement(V(0, 0, 7), App.Rotation())
sketch13.addGeometry([
    Part.Circle(V(4.5, -16.05, 0), V(0, 0, 1), 1),  # 0
    Part.Circle(V(4.5, -26.64, 0), V(0, 0, 1), 1),  # 1
    Part.Circle(V(4.5, -37.22, 0), V(0, 0, 1), 1),  # 2
    Part.Circle(V(4.5, -47.8, 0), V(0, 0, 1), 1),  # 3
    Part.Circle(V(4.5, -58.38, 0), V(0, 0, 1), 1),  # 4
    Part.Circle(V(4.5, -68.96, 0), V(0, 0, 1), 1),  # 5
], False)
sketch13.addConstraint([
    Sketcher.Constraint("Equal", 0, 1),
    Sketcher.Constraint("Equal", 1, 2),
    Sketcher.Constraint("Equal", 2, 3),
    Sketcher.Constraint("Equal", 3, 4),
    Sketcher.Constraint("Equal", 4, 5),
    Sketcher.Constraint("Vertical", 0, 3, 1, 3),
    Sketcher.Constraint("Vertical", 1, 3, 2, 3),
    Sketcher.Constraint("Vertical", 2, 3, 3, 3),
    Sketcher.Constraint("Vertical", 3, 3, 4, 3),
    Sketcher.Constraint("Vertical", 4, 3, 5, 3),
    Sketcher.Constraint("Diameter", 0, 2.0),
    Sketcher.Constraint("DistanceX", -1, 1, 0, 3, 4.5),
    Sketcher.Constraint("DistanceY", 3, 3, -1, 1, 47.8),
    Sketcher.Constraint("DistanceY", 0, 3, -1, 1, 16.05),
    Sketcher.Constraint("DistanceY", 1, 3, -1, 1, 26.64),
    Sketcher.Constraint("DistanceY", 2, 3, -1, 1, 37.22),
    Sketcher.Constraint("DistanceY", 4, 3, -1, 1, 58.38),
    Sketcher.Constraint("DistanceY", 5, 3, -1, 1, 68.96),
])
pocket12 = body.newObject("PartDesign::Pocket", "Pocket011")
pocket12.Profile = sketch13
pocket12.Type = "ThroughAll"

doc.recompute()
